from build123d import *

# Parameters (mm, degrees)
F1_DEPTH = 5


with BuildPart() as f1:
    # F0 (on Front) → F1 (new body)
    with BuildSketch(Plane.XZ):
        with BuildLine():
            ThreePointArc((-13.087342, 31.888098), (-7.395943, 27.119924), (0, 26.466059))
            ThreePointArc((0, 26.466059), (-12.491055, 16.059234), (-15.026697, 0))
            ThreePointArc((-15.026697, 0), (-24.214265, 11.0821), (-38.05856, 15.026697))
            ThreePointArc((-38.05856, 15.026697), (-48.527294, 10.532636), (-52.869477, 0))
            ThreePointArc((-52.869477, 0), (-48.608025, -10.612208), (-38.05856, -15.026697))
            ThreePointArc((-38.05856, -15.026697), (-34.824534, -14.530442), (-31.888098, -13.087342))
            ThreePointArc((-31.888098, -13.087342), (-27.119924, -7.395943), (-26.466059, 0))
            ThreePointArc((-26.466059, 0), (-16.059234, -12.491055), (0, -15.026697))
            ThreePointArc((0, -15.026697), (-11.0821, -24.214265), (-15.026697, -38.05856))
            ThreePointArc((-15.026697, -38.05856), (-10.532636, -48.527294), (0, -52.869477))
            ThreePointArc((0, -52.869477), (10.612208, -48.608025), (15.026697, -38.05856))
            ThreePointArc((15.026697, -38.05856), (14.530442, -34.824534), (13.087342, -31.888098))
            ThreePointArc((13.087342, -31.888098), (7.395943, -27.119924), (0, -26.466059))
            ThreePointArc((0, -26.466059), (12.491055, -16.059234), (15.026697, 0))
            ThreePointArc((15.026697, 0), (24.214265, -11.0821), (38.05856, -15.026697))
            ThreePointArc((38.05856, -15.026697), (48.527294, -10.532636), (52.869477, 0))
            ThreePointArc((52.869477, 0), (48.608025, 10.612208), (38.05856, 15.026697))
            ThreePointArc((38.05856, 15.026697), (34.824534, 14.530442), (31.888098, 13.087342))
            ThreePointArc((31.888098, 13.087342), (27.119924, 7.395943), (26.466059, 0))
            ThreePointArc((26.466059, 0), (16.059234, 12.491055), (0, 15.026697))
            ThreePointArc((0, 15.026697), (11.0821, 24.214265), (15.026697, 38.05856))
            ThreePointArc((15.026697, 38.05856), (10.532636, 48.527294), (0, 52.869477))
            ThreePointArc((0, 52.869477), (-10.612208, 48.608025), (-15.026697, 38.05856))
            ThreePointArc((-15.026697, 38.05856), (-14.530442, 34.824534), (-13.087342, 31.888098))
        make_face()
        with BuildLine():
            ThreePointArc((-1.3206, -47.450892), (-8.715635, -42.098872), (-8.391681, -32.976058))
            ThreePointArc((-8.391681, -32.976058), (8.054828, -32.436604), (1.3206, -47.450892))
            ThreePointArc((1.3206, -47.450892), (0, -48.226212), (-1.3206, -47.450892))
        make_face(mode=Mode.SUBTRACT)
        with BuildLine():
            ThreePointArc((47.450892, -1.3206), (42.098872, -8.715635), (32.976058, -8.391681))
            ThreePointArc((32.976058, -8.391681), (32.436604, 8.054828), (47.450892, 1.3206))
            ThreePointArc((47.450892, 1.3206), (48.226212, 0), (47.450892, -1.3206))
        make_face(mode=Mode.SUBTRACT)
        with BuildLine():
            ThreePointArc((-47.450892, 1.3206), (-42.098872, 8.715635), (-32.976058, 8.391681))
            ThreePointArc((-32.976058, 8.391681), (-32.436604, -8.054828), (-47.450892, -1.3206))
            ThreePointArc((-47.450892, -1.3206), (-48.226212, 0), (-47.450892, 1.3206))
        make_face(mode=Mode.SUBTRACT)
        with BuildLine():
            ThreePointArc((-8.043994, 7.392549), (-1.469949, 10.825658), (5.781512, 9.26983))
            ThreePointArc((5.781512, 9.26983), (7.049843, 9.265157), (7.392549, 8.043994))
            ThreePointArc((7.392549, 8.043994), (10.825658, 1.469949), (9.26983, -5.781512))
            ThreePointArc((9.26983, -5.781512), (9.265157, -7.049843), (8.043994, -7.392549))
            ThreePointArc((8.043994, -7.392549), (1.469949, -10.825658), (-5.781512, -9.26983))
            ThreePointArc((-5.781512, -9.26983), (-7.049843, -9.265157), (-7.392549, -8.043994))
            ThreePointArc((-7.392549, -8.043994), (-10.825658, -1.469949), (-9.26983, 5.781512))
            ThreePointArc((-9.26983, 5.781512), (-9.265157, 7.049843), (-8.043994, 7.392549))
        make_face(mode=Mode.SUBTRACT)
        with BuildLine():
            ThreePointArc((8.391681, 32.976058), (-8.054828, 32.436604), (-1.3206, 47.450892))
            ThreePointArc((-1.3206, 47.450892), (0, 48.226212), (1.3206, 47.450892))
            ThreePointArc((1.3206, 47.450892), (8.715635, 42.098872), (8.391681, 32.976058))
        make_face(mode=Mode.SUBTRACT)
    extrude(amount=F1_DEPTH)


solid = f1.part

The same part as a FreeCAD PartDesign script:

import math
import FreeCAD as App
import Part
import Sketcher

V = App.Vector
Q = App.Units.Quantity

doc = App.newDocument("Part")
body = doc.addObject("PartDesign::Body", "Body")

sketch1 = body.newObject("Sketcher::SketchObject", "Sketch")
sketch1.AttachmentSupport = (doc.getObject("XZ_Plane"), [""])
sketch1.MapMode = "FlatFace"
sketch1.addGeometry([
    Part.ArcOfCircle(Part.Circle(V(-2.658021, 38.555991, 0), V(0, 0, 1), 12.378672), math.radians(-147.40755), math.radians(-77.600555)),
    Part.ArcOfCircle(Part.Circle(V(7.587532, 4.659167, 0), V(0, 0, 1), 23.089201), math.radians(109.184929), math.radians(191.641645)),
    Part.ArcOfCircle(Part.Circle(V(-37.500782, -9.282538, 0), V(0, 0, 1), 24.315633), math.radians(22.442238), math.radians(91.314427)),
    Part.ArcOfCircle(Part.Circle(V(-37.781597, -0.058756, 0), V(0, 0, 1), 15.087995), math.radians(91.051811), math.radians(179.776879)),
    Part.ArcOfCircle(Part.Circle(V(-38.058559, -0.21423, 0), V(0, 0, 1), 14.812467), math.radians(179.171314), math.radians(269.999996)),
    Part.ArcOfCircle(Part.Circle(V(-38.058561, -4.240712, 0), V(0, 0, 1), 10.785985), math.radians(-89.999996), math.radians(-55.104496)),
    Part.ArcOfCircle(Part.Circle(V(-38.555991, -2.658021, 0), V(0, 0, 1), 12.378672), math.radians(-57.40755), math.radians(12.399445)),
    Part.ArcOfCircle(Part.Circle(V(-4.659167, 7.587532, 0), V(0, 0, 1), 23.089201), math.radians(-160.815071), math.radians(-78.358355)),
    Part.ArcOfCircle(Part.Circle(V(9.282538, -37.500782, 0), V(0, 0, 1), 24.315633), math.radians(112.442238), math.radians(181.314427)),
    Part.ArcOfCircle(Part.Circle(V(0.058756, -37.781597, 0), V(0, 0, 1), 15.087995), math.radians(-178.948189), math.radians(-90.223121)),
    Part.ArcOfCircle(Part.Circle(V(0.21423, -38.058559, 0), V(0, 0, 1), 14.812467), math.radians(-90.828686), math.radians(-0.000004)),
    Part.ArcOfCircle(Part.Circle(V(4.240712, -38.058561, 0), V(0, 0, 1), 10.785985), math.radians(0.000004), math.radians(34.895504)),
    Part.ArcOfCircle(Part.Circle(V(2.658021, -38.555991, 0), V(0, 0, 1), 12.378672), math.radians(32.59245), math.radians(102.399445)),
    Part.ArcOfCircle(Part.Circle(V(-7.587532, -4.659167, 0), V(0, 0, 1), 23.089201), math.radians(-70.815071), math.radians(11.641645)),
    Part.ArcOfCircle(Part.Circle(V(37.500782, 9.282538, 0), V(0, 0, 1), 24.315633), math.radians(-157.557762), math.radians(-88.685573)),
    Part.ArcOfCircle(Part.Circle(V(37.781597, 0.058756, 0), V(0, 0, 1), 15.087995), math.radians(-88.948189), math.radians(-0.223121)),
    Part.ArcOfCircle(Part.Circle(V(38.058559, 0.21423, 0), V(0, 0, 1), 14.812467), math.radians(-0.828686), math.radians(89.999996)),
    Part.ArcOfCircle(Part.Circle(V(38.058561, 4.240712, 0), V(0, 0, 1), 10.785985), math.radians(90.000004), math.radians(124.895504)),
    Part.ArcOfCircle(Part.Circle(V(38.555991, 2.658021, 0), V(0, 0, 1), 12.378672), math.radians(122.59245), math.radians(192.399445)),
    Part.ArcOfCircle(Part.Circle(V(4.659167, -7.587532, 0), V(0, 0, 1), 23.089201), math.radians(19.184929), math.radians(101.641645)),
    Part.ArcOfCircle(Part.Circle(V(-9.282538, 37.500782, 0), V(0, 0, 1), 24.315633), math.radians(-67.557762), math.radians(1.314427)),
    Part.ArcOfCircle(Part.Circle(V(-0.058756, 37.781597, 0), V(0, 0, 1), 15.087995), math.radians(1.051811), math.radians(89.776879)),
    Part.ArcOfCircle(Part.Circle(V(-0.21423, 38.058559, 0), V(0, 0, 1), 14.812467), math.radians(89.171314), math.radians(179.999996)),
    Part.ArcOfCircle(Part.Circle(V(-4.240712, 38.058561, 0), V(0, 0, 1), 10.785985), math.radians(-179.999996), math.radians(-145.104496)),
    Part.ArcOfCircle(Part.Circle(V(-46.713865, 0, 0), V(0, 0, 1), 1.512347), math.radians(119.165885), math.radians(240.834115)),
    Part.ArcOfCircle(Part.Circle(V(-37.841208, -0.000001, 0), V(0, 0, 1), 9.700001), math.radians(59.896616), math.radians(172.175199)),
    Part.ArcOfCircle(Part.Circle(V(-37.841208, 0, 0), V(0, 0, 1), 9.7), math.radians(-172.175205), math.radians(59.896612)),
    Part.ArcOfCircle(Part.Circle(V(0, -46.713865, 0), V(0, 0, 1), 1.512347), math.radians(-150.834115), math.radians(-29.165885)),
    Part.ArcOfCircle(Part.Circle(V(0.000001, -37.841208, 0), V(0, 0, 1), 9.700001), math.radians(149.896616), math.radians(262.175199)),
    Part.ArcOfCircle(Part.Circle(V(0, -37.841208, 0), V(0, 0, 1), 9.7), math.radians(-82.175205), math.radians(149.896612)),
    Part.ArcOfCircle(Part.Circle(V(-0.000001, 37.841208, 0), V(0, 0, 1), 9.700001), math.radians(-30.103384), math.radians(82.175199)),
    Part.ArcOfCircle(Part.Circle(V(0, 37.841208, 0), V(0, 0, 1), 9.7), math.radians(97.824795), math.radians(329.896612)),
    Part.ArcOfCircle(Part.Circle(V(0, 46.713865, 0), V(0, 0, 1), 1.512347), math.radians(29.165885), math.radians(150.834115)),
    Part.ArcOfCircle(Part.Circle(V(-8.427647, 6.412583, 0), V(0, 0, 1), 1.052389), math.radians(68.619831), math.radians(216.845249)),
    Part.ArcOfCircle(Part.Circle(V(0, -0.000001, 0), V(0, 0, 1), 10.925001), math.radians(58.048574), math.radians(137.416532)),
    Part.ArcOfCircle(Part.Circle(V(6.412583, 8.427647, 0), V(0, 0, 1), 1.052389), math.radians(-21.380169), math.radians(126.845249)),
    Part.ArcOfCircle(Part.Circle(V(-0.000001, 0, 0), V(0, 0, 1), 10.925001), math.radians(-31.951426), math.radians(47.416532)),
    Part.ArcOfCircle(Part.Circle(V(8.427647, -6.412583, 0), V(0, 0, 1), 1.052389), math.radians(-111.380169), math.radians(36.845249)),
    Part.ArcOfCircle(Part.Circle(V(0, 0.000001, 0), V(0, 0, 1), 10.925001), math.radians(-121.951426), math.radians(-42.583468)),
    Part.ArcOfCircle(Part.Circle(V(-6.412583, -8.427647, 0), V(0, 0, 1), 1.052389), math.radians(158.619831), math.radians(306.845249)),
    Part.ArcOfCircle(Part.Circle(V(0.000001, 0, 0), V(0, 0, 1), 10.925001), math.radians(148.048574), math.radians(227.416532)),
    Part.ArcOfCircle(Part.Circle(V(46.713865, 0, 0), V(0, 0, 1), 1.512347), math.radians(-60.834115), math.radians(60.834115)),
    Part.ArcOfCircle(Part.Circle(V(37.841208, 0.000001, 0), V(0, 0, 1), 9.700001), math.radians(-120.103384), math.radians(-7.824801)),
    Part.ArcOfCircle(Part.Circle(V(37.841208, 0, 0), V(0, 0, 1), 9.7), math.radians(7.824795), math.radians(239.896612)),
], False)
sketch1.addConstraint([
    Sketcher.Constraint("Coincident", 0, 2, 1, 1),
    Sketcher.Constraint("Coincident", 1, 2, 2, 1),
    Sketcher.Constraint("Coincident", 2, 2, 3, 1),
    Sketcher.Constraint("Coincident", 3, 2, 4, 1),
    Sketcher.Constraint("Tangent", 4, 2, 5, 1),
    Sketcher.Constraint("Coincident", 5, 2, 6, 1),
    Sketcher.Constraint("Coincident", 6, 2, 7, 1),
    Sketcher.Constraint("Coincident", 7, 2, 8, 1),
    Sketcher.Constraint("Coincident", 8, 2, 9, 1),
    Sketcher.Constraint("Coincident", 9, 2, 10, 1),
    Sketcher.Constraint("Tangent", 10, 2, 11, 1),
    Sketcher.Constraint("Coincident", 11, 2, 12, 1),
    Sketcher.Constraint("Coincident", 12, 2, 13, 1),
    Sketcher.Constraint("Coincident", 13, 2, 14, 1),
    Sketcher.Constraint("Coincident", 14, 2, 15, 1),
    Sketcher.Constraint("Coincident", 15, 2, 16, 1),
    Sketcher.Constraint("Tangent", 16, 2, 17, 1),
    Sketcher.Constraint("Coincident", 17, 2, 18, 1),
    Sketcher.Constraint("Coincident", 18, 2, 19, 1),
    Sketcher.Constraint("Coincident", 19, 2, 20, 1),
    Sketcher.Constraint("Coincident", 20, 2, 21, 1),
    Sketcher.Constraint("Coincident", 21, 2, 22, 1),
    Sketcher.Constraint("Tangent", 22, 2, 23, 1),
    Sketcher.Constraint("Coincident", 23, 2, 0, 1),
    Sketcher.Constraint("Coincident", 24, 1, 25, 2),
    Sketcher.Constraint("Tangent", 25, 1, 26, 2),
    Sketcher.Constraint("Coincident", 26, 1, 24, 2),
    Sketcher.Constraint("Coincident", 27, 1, 28, 2),
    Sketcher.Constraint("Tangent", 28, 1, 29, 2),
    Sketcher.Constraint("Coincident", 29, 1, 27, 2),
    Sketcher.Constraint("Tangent", 30, 1, 31, 2),
    Sketcher.Constraint("Coincident", 31, 1, 32, 2),
    Sketcher.Constraint("Coincident", 32, 1, 30, 2),
    Sketcher.Constraint("Coincident", 33, 1, 34, 2),
    Sketcher.Constraint("Coincident", 34, 1, 35, 2),
    Sketcher.Constraint("Coincident", 35, 1, 36, 2),
    Sketcher.Constraint("Coincident", 36, 1, 37, 2),
    Sketcher.Constraint("Coincident", 37, 1, 38, 2),
    Sketcher.Constraint("Coincident", 38, 1, 39, 2),
    Sketcher.Constraint("Coincident", 39, 1, 40, 2),
    Sketcher.Constraint("Coincident", 40, 1, 33, 2),
    Sketcher.Constraint("Coincident", 41, 1, 42, 2),
    Sketcher.Constraint("Tangent", 42, 1, 43, 2),
    Sketcher.Constraint("Coincident", 43, 1, 41, 2),
    Sketcher.Constraint("Coincident", 34, 3, -1, 1),
    Sketcher.Constraint("Coincident", 36, 3, -1, 1),
    Sketcher.Constraint("Coincident", 38, 3, -1, 1),
    Sketcher.Constraint("Coincident", 40, 3, -1, 1),
    Sketcher.Constraint("Equal", 0, 6),
    Sketcher.Constraint("Equal", 1, 7),
    Sketcher.Constraint("Equal", 2, 8),
    Sketcher.Constraint("Equal", 3, 9),
    Sketcher.Constraint("Equal", 4, 10),
    Sketcher.Constraint("Equal", 5, 11),
    Sketcher.Constraint("Equal", 6, 12),
    Sketcher.Constraint("Equal", 7, 13),
    Sketcher.Constraint("Equal", 8, 14),
    Sketcher.Constraint("Equal", 9, 15),
    Sketcher.Constraint("Equal", 10, 16),
    Sketcher.Constraint("Equal", 11, 17),
    Sketcher.Constraint("Equal", 12, 18),
    Sketcher.Constraint("Equal", 13, 19),
    Sketcher.Constraint("Equal", 14, 20),
    Sketcher.Constraint("Equal", 15, 21),
    Sketcher.Constraint("Equal", 16, 22),
    Sketcher.Constraint("Equal", 17, 23),
    Sketcher.Constraint("Equal", 25, 26),
    Sketcher.Constraint("Equal", 24, 27),
    Sketcher.Constraint("Equal", 26, 28),
    Sketcher.Constraint("Equal", 28, 29),
    Sketcher.Constraint("Equal", 29, 30),
    Sketcher.Constraint("Equal", 30, 31),
    Sketcher.Constraint("Equal", 27, 32),
    Sketcher.Constraint("Equal", 33, 35),
    Sketcher.Constraint("Equal", 34, 36),
    Sketcher.Constraint("Equal", 35, 37),
    Sketcher.Constraint("Equal", 36, 38),
    Sketcher.Constraint("Equal", 37, 39),
    Sketcher.Constraint("Equal", 38, 40),
    Sketcher.Constraint("Equal", 32, 41),
    Sketcher.Constraint("Equal", 31, 42),
    Sketcher.Constraint("Equal", 42, 43),
    Sketcher.Constraint("Symmetric", 0, 3, 12, 3, -1, 1),
    Sketcher.Constraint("Symmetric", 1, 3, 13, 3, -1, 1),
    Sketcher.Constraint("Symmetric", 2, 3, 14, 3, -1, 1),
    Sketcher.Constraint("Symmetric", 3, 3, 15, 3, -1, 1),
    Sketcher.Constraint("Symmetric", 4, 3, 16, 3, -1, 1),
    Sketcher.Constraint("Symmetric", 6, 3, 18, 3, -1, 1),
    Sketcher.Constraint("Symmetric", 7, 3, 19, 3, -1, 1),
    Sketcher.Constraint("Symmetric", 8, 3, 20, 3, -1, 1),
    Sketcher.Constraint("Symmetric", 9, 3, 21, 3, -1, 1),
    Sketcher.Constraint("Symmetric", 10, 3, 22, 3, -1, 1),
    Sketcher.Constraint("Symmetric", 28, 3, 30, 3, -1, 1),
    Sketcher.Constraint("Symmetric", 27, 3, 32, 3, -1, 1),
    Sketcher.Constraint("Symmetric", 33, 3, 37, 3, -1, 1),
    Sketcher.Constraint("Symmetric", 35, 3, 39, 3, -1, 1),
    Sketcher.Constraint("Symmetric", 24, 3, 41, 3, -1, 1),
    Sketcher.Constraint("Symmetric", 25, 3, 42, 3, -1, 1),
    Sketcher.Constraint("Symmetric", 8, 2, 10, 2, -2),
    Sketcher.Constraint("Symmetric", 4, 2, 14, 2, -2),
    Sketcher.Constraint("Symmetric", 27, 1, 29, 1, -2),
    Sketcher.Constraint("Symmetric", 26, 1, 41, 1, -2),
    Sketcher.Constraint("PointOnObject", 0, 2, -2),
    Sketcher.Constraint("PointOnObject", 1, 2, -1),
    Sketcher.Constraint("PointOnObject", 3, 2, -1),
    Sketcher.Constraint("PointOnObject", 6, 2, -1),
    Sketcher.Constraint("PointOnObject", 7, 2, -2),
    Sketcher.Constraint("PointOnObject", 9, 2, -2),
    Sketcher.Constraint("Horizontal", 10, 3, 11, 3),
    Sketcher.Constraint("Horizontal", 22, 3, 23, 3),
    Sketcher.Constraint("Horizontal", 4, 2, 7, 2),
    Sketcher.Constraint("Vertical", 4, 3, 5, 3),
    Sketcher.Constraint("Vertical", 16, 3, 17, 3),
    Sketcher.Constraint("Vertical", 1, 2, 8, 2),
    Sketcher.Constraint("Radius", 25, Q("9.700001 mm")),
    Sketcher.Constraint("Radius", 34, Q("10.925001 mm")),
    Sketcher.Constraint("Radius", 1, Q("23.089201 mm")),
    Sketcher.Constraint("Radius", 33, Q("1.052389 mm")),
    Sketcher.Constraint("Radius", 0, Q("12.378672 mm")),
    Sketcher.Constraint("Radius", 2, Q("24.315633 mm")),
    Sketcher.Constraint("Radius", 3, Q("15.087995 mm")),
    Sketcher.Constraint("Radius", 4, Q("14.812467 mm")),
    Sketcher.Constraint("Radius", 5, Q("10.785985 mm")),
    Sketcher.Constraint("Radius", 24, Q("1.512347 mm")),
    Sketcher.Constraint("DistanceX", 5, 2, -1, 1, Q("31.888098 mm")),
    Sketcher.Constraint("DistanceY", 11, 2, -1, 1, Q("31.888098 mm")),
    Sketcher.Constraint("DistanceY", -1, 1, 24, 1, Q("1.3206 mm")),
    Sketcher.Constraint("DistanceX", 27, 1, -1, 1, Q("1.3206 mm")),
    Sketcher.Constraint("DistanceX", 0, 3, -1, 1, Q("2.658021 mm")),
    Sketcher.Constraint("DistanceY", -1, 1, 0, 3, Q("38.555991 mm")),
    Sketcher.Constraint("DistanceX", 4, 3, -1, 1, Q("38.058559 mm")),
    Sketcher.Constraint("DistanceY", 4, 3, -1, 1, Q("0.21423 mm")),
    Sketcher.Constraint("DistanceX", 6, 3, -1, 1, Q("38.555991 mm")),
    Sketcher.Constraint("DistanceX", -1, 1, 10, 3, Q("0.21423 mm")),
    Sketcher.Constraint("DistanceX", 25, 3, -1, 1, Q("37.841208 mm")),
    Sketcher.Constraint("DistanceY", 28, 3, -1, 1, Q("37.841208 mm")),
    Sketcher.Constraint("DistanceX", 25, 1, -1, 1, Q("32.976058 mm")),
    Sketcher.Constraint("DistanceX", 28, 1, -1, 1, Q("8.391681 mm")),
    Sketcher.Constraint("DistanceX", -1, 1, 30, 1, Q("8.391681 mm")),
    Sketcher.Constraint("DistanceY", -1, 1, 33, 1, Q("7.392549 mm")),
    Sketcher.Constraint("DistanceX", -1, 1, 34, 1, Q("5.781512 mm")),
    Sketcher.Constraint("DistanceX", -1, 1, 35, 1, Q("7.392549 mm")),
    Sketcher.Constraint("DistanceX", -1, 1, 36, 1, Q("9.26983 mm")),
    Sketcher.Constraint("DistanceX", -1, 1, 42, 1, Q("32.976058 mm")),
])
pad1 = body.newObject("PartDesign::Pad", "Pad")
pad1.Profile = sketch1
pad1.Length = 5

doc.recompute()
